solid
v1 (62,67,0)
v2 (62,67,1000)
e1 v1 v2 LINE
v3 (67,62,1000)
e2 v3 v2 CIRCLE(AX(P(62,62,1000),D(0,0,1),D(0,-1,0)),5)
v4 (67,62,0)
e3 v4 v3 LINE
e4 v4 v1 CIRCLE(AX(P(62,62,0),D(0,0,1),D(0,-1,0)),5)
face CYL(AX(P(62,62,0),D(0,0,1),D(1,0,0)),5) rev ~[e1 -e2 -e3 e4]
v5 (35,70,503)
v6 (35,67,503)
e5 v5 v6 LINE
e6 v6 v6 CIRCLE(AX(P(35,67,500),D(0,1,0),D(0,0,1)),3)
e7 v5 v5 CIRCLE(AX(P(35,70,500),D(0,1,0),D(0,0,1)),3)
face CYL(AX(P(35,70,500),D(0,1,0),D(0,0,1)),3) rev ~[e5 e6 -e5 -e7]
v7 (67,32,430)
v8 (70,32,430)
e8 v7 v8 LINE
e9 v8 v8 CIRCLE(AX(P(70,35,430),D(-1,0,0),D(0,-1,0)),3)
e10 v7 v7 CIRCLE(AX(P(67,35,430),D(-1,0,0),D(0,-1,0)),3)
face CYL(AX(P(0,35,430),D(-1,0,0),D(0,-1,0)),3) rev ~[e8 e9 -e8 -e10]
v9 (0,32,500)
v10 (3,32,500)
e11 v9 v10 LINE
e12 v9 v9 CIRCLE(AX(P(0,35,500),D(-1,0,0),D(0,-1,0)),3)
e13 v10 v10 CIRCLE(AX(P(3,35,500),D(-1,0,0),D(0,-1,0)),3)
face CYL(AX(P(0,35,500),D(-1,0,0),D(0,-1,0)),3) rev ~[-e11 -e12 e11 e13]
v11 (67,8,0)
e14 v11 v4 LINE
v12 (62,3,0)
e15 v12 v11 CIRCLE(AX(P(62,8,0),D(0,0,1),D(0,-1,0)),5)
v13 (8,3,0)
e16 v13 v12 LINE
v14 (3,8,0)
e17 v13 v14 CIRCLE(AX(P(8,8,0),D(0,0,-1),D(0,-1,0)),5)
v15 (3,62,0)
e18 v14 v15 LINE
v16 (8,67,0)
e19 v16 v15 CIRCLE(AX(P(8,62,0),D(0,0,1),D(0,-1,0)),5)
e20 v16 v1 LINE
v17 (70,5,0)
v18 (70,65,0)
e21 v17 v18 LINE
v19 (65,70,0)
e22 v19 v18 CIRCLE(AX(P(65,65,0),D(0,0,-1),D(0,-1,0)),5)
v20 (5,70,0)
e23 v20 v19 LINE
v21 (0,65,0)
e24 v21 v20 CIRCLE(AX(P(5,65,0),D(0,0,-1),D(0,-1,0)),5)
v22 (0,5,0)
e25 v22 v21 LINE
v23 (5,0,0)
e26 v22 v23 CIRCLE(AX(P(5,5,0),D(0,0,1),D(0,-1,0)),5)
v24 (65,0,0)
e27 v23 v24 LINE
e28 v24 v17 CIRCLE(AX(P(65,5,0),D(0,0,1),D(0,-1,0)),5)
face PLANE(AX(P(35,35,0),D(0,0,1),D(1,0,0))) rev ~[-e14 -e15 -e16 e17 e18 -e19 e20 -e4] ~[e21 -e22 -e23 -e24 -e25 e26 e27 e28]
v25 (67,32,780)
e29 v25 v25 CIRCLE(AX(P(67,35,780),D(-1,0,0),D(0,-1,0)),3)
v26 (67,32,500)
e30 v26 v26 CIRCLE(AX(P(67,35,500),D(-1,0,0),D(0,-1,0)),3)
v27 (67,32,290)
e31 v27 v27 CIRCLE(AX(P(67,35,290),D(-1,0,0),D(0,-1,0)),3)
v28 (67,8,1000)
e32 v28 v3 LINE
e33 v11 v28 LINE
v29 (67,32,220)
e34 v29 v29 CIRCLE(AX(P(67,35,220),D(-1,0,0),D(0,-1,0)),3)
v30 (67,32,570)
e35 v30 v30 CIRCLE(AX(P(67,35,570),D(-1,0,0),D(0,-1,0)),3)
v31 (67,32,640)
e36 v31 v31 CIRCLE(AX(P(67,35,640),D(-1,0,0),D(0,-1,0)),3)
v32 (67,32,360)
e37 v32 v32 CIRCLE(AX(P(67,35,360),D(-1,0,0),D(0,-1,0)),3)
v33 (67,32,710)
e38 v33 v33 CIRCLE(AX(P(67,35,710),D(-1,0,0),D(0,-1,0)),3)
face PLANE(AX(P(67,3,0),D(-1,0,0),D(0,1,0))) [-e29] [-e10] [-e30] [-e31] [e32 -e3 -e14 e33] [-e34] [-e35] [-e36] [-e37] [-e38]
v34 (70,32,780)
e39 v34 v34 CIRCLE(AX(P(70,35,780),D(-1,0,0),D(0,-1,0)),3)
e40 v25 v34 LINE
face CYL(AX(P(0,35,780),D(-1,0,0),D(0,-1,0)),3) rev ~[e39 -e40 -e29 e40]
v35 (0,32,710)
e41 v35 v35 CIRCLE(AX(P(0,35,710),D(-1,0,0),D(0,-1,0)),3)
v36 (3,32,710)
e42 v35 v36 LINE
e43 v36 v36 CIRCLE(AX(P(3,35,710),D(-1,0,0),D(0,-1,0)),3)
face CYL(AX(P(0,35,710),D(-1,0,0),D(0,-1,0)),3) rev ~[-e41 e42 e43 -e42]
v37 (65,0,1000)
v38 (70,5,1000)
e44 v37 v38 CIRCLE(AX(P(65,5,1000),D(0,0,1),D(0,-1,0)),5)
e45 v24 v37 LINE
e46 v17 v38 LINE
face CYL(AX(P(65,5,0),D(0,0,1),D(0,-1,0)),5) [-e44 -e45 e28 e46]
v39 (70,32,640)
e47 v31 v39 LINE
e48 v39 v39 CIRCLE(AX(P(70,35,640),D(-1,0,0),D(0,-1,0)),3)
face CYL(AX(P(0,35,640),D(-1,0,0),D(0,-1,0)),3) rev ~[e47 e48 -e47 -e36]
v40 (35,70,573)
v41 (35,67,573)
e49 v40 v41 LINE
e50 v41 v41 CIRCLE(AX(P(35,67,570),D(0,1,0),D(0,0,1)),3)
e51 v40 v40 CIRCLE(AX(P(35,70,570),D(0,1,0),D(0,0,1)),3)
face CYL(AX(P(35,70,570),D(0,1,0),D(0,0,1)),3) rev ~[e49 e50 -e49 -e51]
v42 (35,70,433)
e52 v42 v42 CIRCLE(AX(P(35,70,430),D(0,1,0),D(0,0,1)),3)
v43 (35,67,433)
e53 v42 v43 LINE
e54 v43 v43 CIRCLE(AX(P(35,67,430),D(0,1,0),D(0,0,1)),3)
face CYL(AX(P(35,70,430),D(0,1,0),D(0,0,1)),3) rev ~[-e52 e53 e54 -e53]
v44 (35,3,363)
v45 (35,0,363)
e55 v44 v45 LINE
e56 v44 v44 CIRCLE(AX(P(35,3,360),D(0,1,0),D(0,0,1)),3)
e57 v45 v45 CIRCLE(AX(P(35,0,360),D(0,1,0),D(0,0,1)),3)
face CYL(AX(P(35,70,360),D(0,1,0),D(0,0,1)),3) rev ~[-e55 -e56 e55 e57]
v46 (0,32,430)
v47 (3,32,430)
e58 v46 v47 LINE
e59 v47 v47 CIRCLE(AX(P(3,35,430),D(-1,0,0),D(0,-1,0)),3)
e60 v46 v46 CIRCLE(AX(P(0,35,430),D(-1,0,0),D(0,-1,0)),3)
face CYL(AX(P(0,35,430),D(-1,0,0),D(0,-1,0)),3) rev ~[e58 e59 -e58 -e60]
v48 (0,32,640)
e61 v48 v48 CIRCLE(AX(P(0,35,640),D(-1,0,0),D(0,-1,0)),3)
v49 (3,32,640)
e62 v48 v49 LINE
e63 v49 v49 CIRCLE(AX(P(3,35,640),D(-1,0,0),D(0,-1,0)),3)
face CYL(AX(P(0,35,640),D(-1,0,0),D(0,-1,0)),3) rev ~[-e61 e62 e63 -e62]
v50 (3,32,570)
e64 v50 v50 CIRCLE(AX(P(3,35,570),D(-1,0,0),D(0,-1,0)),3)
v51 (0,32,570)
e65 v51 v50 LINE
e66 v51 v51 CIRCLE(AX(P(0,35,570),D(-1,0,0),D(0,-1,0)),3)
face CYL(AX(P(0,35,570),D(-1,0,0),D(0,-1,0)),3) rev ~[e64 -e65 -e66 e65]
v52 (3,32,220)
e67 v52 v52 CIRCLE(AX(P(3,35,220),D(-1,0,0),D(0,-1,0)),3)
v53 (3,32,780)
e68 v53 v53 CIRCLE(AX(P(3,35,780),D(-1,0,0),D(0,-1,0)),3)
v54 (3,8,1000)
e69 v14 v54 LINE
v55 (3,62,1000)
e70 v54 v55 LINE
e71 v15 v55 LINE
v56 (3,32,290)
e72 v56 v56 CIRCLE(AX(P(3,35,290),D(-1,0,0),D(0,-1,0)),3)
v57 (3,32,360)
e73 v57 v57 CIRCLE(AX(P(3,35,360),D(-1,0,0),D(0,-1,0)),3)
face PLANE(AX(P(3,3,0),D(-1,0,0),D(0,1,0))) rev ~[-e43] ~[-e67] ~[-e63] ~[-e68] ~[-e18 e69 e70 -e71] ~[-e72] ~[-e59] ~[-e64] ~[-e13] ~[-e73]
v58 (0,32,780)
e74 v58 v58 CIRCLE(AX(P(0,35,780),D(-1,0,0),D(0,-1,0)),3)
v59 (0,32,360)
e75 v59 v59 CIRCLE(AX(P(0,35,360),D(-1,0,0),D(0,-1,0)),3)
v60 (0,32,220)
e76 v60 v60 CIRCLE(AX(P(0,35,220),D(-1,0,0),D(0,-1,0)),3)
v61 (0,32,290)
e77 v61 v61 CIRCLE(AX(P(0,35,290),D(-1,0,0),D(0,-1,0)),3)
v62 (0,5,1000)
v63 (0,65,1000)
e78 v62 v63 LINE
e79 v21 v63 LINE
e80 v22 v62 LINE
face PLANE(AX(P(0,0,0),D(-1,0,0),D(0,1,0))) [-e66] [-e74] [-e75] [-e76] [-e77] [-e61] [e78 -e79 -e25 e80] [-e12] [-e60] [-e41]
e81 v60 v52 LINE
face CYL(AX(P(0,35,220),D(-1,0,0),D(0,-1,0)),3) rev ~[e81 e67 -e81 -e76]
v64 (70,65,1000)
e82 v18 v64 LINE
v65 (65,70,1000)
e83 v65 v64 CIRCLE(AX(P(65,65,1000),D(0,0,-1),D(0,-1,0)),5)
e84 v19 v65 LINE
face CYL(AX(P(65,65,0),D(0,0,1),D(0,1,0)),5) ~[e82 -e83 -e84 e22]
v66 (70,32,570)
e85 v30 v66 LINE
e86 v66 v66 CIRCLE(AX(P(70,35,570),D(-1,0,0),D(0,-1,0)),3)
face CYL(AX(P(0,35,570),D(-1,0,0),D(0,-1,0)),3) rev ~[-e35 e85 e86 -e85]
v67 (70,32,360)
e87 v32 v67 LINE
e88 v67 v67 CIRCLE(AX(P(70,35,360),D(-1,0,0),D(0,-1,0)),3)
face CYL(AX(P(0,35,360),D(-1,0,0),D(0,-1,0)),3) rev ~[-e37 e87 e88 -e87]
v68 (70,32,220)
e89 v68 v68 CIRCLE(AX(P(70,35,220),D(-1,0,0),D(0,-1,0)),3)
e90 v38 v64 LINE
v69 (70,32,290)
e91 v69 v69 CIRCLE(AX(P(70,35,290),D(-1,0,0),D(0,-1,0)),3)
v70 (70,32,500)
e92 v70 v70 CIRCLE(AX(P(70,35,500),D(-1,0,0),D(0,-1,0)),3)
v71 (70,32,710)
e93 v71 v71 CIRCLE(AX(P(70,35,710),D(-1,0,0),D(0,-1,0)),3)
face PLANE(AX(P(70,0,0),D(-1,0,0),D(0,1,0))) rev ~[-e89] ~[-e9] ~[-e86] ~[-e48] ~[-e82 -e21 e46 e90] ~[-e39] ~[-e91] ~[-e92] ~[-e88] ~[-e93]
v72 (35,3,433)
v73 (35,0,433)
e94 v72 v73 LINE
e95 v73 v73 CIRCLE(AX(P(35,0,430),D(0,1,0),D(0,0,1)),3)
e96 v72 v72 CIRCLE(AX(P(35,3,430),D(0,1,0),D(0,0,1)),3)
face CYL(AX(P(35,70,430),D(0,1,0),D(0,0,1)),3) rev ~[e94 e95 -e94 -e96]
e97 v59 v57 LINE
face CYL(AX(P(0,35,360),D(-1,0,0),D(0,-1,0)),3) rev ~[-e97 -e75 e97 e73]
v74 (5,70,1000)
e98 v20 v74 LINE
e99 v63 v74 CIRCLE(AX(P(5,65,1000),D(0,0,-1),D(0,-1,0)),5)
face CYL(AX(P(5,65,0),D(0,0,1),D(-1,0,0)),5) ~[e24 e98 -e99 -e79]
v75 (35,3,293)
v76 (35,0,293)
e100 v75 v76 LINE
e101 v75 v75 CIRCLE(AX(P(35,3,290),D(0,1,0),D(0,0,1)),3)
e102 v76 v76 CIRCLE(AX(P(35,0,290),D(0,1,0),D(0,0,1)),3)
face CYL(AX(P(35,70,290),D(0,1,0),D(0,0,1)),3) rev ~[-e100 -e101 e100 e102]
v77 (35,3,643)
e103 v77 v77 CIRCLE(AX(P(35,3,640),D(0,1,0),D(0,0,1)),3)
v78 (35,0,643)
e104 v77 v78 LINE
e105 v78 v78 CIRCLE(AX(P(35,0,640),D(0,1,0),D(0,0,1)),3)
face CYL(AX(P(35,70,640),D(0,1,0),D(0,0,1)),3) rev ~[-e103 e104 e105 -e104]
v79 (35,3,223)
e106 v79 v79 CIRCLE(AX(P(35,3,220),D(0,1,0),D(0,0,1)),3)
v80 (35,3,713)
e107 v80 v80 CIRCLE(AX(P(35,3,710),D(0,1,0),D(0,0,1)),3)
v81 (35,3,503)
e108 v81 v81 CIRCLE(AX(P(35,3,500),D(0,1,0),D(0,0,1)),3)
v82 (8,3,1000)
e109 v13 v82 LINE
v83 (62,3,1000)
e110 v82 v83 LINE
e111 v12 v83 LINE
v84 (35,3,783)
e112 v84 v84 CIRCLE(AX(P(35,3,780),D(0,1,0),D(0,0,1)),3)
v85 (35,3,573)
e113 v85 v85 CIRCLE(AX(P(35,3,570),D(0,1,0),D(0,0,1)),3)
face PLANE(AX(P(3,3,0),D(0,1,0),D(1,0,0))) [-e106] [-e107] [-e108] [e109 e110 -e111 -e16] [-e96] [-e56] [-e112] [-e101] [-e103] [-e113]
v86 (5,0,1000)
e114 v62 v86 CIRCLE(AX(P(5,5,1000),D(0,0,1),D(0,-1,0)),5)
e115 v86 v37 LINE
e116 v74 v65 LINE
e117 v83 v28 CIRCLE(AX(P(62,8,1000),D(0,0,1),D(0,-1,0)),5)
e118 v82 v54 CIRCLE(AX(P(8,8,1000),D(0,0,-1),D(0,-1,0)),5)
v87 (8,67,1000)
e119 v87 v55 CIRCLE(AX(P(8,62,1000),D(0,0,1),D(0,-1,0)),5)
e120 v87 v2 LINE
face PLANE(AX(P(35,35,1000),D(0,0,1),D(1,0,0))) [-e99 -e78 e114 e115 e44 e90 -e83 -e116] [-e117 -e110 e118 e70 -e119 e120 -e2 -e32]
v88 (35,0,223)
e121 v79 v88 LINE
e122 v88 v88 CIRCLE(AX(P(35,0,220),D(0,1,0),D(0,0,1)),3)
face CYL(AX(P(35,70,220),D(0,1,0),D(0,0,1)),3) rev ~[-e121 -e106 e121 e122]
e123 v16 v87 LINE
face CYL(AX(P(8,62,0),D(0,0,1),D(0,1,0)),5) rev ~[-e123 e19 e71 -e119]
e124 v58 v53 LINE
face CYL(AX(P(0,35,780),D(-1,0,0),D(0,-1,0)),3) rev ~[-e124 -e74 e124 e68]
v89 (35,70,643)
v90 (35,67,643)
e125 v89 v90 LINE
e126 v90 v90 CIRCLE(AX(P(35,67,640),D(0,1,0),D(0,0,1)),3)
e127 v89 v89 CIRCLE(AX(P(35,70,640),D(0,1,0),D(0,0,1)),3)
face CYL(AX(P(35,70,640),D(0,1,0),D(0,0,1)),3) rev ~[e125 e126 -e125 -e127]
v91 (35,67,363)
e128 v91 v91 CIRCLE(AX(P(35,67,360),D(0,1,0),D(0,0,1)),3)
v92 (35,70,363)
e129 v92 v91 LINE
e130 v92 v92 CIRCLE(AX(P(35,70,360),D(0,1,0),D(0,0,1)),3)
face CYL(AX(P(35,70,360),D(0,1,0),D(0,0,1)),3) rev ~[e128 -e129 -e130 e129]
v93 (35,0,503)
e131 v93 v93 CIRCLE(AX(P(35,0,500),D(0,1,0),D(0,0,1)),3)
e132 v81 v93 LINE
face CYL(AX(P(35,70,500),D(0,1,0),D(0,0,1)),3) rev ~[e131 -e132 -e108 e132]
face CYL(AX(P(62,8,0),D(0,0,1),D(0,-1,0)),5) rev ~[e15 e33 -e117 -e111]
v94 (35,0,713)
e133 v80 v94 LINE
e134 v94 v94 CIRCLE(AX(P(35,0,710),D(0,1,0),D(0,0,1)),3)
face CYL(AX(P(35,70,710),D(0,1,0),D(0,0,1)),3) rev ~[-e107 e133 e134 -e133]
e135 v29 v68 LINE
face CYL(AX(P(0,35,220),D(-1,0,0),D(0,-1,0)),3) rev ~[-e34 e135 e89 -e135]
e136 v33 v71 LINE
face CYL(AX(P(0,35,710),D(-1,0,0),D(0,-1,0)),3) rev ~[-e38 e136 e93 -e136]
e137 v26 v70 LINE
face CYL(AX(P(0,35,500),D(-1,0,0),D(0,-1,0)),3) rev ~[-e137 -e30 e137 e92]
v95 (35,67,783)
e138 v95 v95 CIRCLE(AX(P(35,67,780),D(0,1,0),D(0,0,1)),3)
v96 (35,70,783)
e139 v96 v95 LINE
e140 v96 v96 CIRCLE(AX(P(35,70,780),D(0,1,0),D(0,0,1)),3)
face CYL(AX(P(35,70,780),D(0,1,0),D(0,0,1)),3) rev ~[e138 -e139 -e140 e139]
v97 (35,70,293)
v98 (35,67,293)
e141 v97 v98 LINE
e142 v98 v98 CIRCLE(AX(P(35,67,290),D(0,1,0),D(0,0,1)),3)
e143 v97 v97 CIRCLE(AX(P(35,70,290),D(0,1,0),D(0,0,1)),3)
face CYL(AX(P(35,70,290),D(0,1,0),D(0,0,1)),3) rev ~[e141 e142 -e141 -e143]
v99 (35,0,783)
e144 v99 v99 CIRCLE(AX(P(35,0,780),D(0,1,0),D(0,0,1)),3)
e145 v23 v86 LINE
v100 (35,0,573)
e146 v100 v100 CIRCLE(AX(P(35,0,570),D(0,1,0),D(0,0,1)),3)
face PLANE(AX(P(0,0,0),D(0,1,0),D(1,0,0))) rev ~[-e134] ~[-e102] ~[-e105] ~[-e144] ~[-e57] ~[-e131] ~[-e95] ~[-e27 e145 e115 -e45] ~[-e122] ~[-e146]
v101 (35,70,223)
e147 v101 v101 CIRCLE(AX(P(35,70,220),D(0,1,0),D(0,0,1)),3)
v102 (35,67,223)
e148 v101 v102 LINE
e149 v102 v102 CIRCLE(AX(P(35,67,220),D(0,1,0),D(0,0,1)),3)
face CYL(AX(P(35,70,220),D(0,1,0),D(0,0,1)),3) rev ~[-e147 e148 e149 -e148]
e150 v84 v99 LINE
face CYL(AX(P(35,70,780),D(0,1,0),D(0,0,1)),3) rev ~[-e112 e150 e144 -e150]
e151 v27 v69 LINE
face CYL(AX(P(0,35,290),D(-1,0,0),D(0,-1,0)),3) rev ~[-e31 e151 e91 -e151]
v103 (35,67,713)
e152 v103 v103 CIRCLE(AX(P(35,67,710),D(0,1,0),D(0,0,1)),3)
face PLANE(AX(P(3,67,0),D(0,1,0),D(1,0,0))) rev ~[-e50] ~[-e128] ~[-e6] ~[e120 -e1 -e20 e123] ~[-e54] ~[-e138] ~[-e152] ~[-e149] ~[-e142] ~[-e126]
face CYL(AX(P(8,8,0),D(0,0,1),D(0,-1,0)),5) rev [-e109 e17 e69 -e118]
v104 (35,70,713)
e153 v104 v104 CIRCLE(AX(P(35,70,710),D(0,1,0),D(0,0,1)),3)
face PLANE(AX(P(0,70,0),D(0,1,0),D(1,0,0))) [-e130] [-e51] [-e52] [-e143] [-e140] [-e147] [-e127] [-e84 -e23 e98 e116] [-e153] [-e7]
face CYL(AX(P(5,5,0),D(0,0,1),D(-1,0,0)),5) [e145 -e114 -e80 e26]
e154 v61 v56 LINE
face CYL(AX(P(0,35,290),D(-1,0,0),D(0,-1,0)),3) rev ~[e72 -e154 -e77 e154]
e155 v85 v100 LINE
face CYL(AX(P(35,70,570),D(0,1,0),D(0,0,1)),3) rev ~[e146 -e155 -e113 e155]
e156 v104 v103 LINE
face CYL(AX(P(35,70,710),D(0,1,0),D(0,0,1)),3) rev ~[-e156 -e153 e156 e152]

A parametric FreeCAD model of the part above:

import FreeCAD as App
import Part
import Sketcher


def edges_at(feature, points):
    """Names of the edges that pass closest to the given points."""
    edges = feature.Shape.Edges
    near = lambda p: min(range(len(edges)), key=lambda i: edges[i].distToShape(Part.Vertex(*p))[0])
    return sorted({f"Edge{near(p) + 1}" for p in points})

doc = App.newDocument("Part")
body = doc.addObject("PartDesign::Body", "Body")

sketch1 = body.newObject("Sketcher::SketchObject", "Sketch")
sketch1.AttachmentSupport = (doc.getObject("XY_Plane"), [""])
sketch1.MapMode = "FlatFace"
sketch1.addGeometry(Part.LineSegment(App.Vector(0, 70, 0), App.Vector(0, 0, 0)), False)
sketch1.addGeometry(Part.LineSegment(App.Vector(0, 0, 0), App.Vector(70, 0, 0)), False)
sketch1.addGeometry(Part.LineSegment(App.Vector(70, 0, 0), App.Vector(70, 70, 0)), False)
sketch1.addGeometry(Part.LineSegment(App.Vector(70, 70, 0), App.Vector(0, 70, 0)), False)
sketch1.addGeometry(Part.LineSegment(App.Vector(67, 3, 0), App.Vector(3, 3, 0)), False)
sketch1.addGeometry(Part.LineSegment(App.Vector(3, 3, 0), App.Vector(3, 67, 0)), False)
sketch1.addGeometry(Part.LineSegment(App.Vector(3, 67, 0), App.Vector(67, 67, 0)), False)
sketch1.addGeometry(Part.LineSegment(App.Vector(67, 67, 0), App.Vector(67, 3, 0)), False)
sketch1.addConstraint(Sketcher.Constraint("Coincident", 0, 2, 1, 1))
sketch1.addConstraint(Sketcher.Constraint("Coincident", 1, 2, 2, 1))
sketch1.addConstraint(Sketcher.Constraint("Coincident", 2, 2, 3, 1))
sketch1.addConstraint(Sketcher.Constraint("Coincident", 3, 2, 0, 1))
sketch1.addConstraint(Sketcher.Constraint("Coincident", 4, 2, 5, 1))
sketch1.addConstraint(Sketcher.Constraint("Coincident", 5, 2, 6, 1))
sketch1.addConstraint(Sketcher.Constraint("Coincident", 6, 2, 7, 1))
sketch1.addConstraint(Sketcher.Constraint("Coincident", 7, 2, 4, 1))
sketch1.addConstraint(Sketcher.Constraint("Vertical", 0))
sketch1.addConstraint(Sketcher.Constraint("Horizontal", 1))
sketch1.addConstraint(Sketcher.Constraint("Vertical", 2))
sketch1.addConstraint(Sketcher.Constraint("Horizontal", 3))
sketch1.addConstraint(Sketcher.Constraint("Horizontal", 4))
sketch1.addConstraint(Sketcher.Constraint("Vertical", 5))
sketch1.addConstraint(Sketcher.Constraint("Horizontal", 6))
sketch1.addConstraint(Sketcher.Constraint("Vertical", 7))
sketch1.addConstraint(Sketcher.Constraint("Coincident", 0, 2, -1, 1))
sketch1.addConstraint(Sketcher.Constraint("Equal", 3, 0))
sketch1.addConstraint(Sketcher.Constraint("Equal", 6, 5))
sketch1.addConstraint(Sketcher.Constraint("DistanceX", 1, 1, 1, 2, 70.0))
sketch1.addConstraint(Sketcher.Constraint("DistanceX", 4, 2, 4, 1, 64.0))
sketch1.addConstraint(Sketcher.Constraint("DistanceX", -1, 1, 4, 2, 3.0))
sketch1.addConstraint(Sketcher.Constraint("DistanceY", -1, 1, 4, 2, 3.0))
pad1 = body.newObject("PartDesign::Pad", "Pad")
pad1.Profile = sketch1
pad1.Length = 1000
doc.recompute()

fillet = body.newObject("PartDesign::Fillet", "Fillet")
fillet.Base = (pad1, edges_at(pad1, [
    (3, 67, 500),
    (3, 3, 500),
    (67, 3, 500),
    (67, 67, 500),
    (0, 70, 500),
    (70, 70, 500),
    (70, 0, 500),
    (0, 0, 500),
]))
fillet.Radius = 5

sketch2 = body.newObject("Sketcher::SketchObject", "Sketch001")
sketch2.AttachmentSupport = (doc.getObject("XZ_Plane"), [""])
sketch2.MapMode = "FlatFace"
sketch2.AttachmentOffset = App.Placement(App.Vector(0, 0, -70), App.Rotation())
sketch2.addGeometry(Part.Circle(App.Vector(35, 500, 0), App.Vector(0, 0, 1), 3), False)
sketch2.addConstraint(Sketcher.Constraint("Diameter", 0, 6.0))
sketch2.addConstraint(Sketcher.Constraint("DistanceX", -1, 1, 0, 3, 35.0))
sketch2.addConstraint(Sketcher.Constraint("DistanceY", -1, 1, 0, 3, 500.0))
pocket1 = body.newObject("PartDesign::Pocket", "Pocket")
pocket1.Profile = sketch2
pocket1.Length = 70
pocket1.Reversed = True
doc.recompute()

linearpattern = body.newObject("PartDesign::LinearPattern", "LinearPattern")
linearpattern.Originals = [pocket1]
linearpattern.Direction = (doc.getObject("Z_Axis"), [""])
linearpattern.Mode = "offset"
linearpattern.Offset = 70
linearpattern.Occurrences = 5
body.Tip = linearpattern
doc.recompute()

linearpattern2 = body.newObject("PartDesign::LinearPattern", "LinearPattern001")
linearpattern2.Originals = [pocket1]
linearpattern2.Direction = (doc.getObject("Z_Axis"), [""])
linearpattern2.Mode = "offset"
linearpattern2.Offset = 70
linearpattern2.Occurrences = 5
linearpattern2.Reversed = True
body.Tip = linearpattern2

sketch3 = body.newObject("Sketcher::SketchObject", "Sketch002")
sketch3.AttachmentSupport = (doc.getObject("YZ_Plane"), [""])
sketch3.MapMode = "FlatFace"
sketch3.addGeometry(Part.Circle(App.Vector(35, 500, 0), App.Vector(0, 0, 1), 3), False)
sketch3.addConstraint(Sketcher.Constraint("Diameter", 0, 6.0))
sketch3.addConstraint(Sketcher.Constraint("DistanceX", -1, 1, 0, 3, 35.0))
sketch3.addConstraint(Sketcher.Constraint("DistanceY", -1, 1, 0, 3, 500.0))
pocket2 = body.newObject("PartDesign::Pocket", "Pocket001")
pocket2.Profile = sketch3
pocket2.Length = 70
pocket2.Reversed = True
doc.recompute()

linearpattern3 = body.newObject("PartDesign::LinearPattern", "LinearPattern002")
linearpattern3.Originals = [pocket2]
linearpattern3.Direction = (doc.getObject("Z_Axis"), [""])
linearpattern3.Mode = "offset"
linearpattern3.Offset = 70
linearpattern3.Occurrences = 5
linearpattern3.Reversed = True
body.Tip = linearpattern3
doc.recompute()

linearpattern4 = body.newObject("PartDesign::LinearPattern", "LinearPattern003")
linearpattern4.Originals = [pocket2]
linearpattern4.Direction = (doc.getObject("Z_Axis"), [""])
linearpattern4.Mode = "offset"
linearpattern4.Offset = 70
linearpattern4.Occurrences = 5
body.Tip = linearpattern4

doc.recompute()
